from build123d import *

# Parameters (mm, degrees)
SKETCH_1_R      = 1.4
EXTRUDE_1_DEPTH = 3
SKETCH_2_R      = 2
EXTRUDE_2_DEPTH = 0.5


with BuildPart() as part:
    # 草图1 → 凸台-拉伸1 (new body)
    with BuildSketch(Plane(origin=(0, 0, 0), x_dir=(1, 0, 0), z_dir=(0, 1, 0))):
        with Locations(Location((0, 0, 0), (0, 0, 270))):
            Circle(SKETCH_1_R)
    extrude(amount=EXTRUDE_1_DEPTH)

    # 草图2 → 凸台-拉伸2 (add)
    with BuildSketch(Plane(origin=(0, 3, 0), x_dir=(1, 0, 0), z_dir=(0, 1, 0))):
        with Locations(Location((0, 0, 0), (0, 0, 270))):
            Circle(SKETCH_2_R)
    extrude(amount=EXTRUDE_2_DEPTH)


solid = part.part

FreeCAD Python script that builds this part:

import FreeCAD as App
import Part
import Sketcher

doc = App.newDocument("Part")
body = doc.addObject("PartDesign::Body", "Body")

sketch1 = doc.addObject("Sketcher::SketchObject", "Sketch")
body.addObject(sketch1)
sketch1.AttachmentSupport = (doc.XZ_Plane, [""])
sketch1.MapMode = "FlatFace"
sketch1.addGeometry(Part.Circle(App.Vector(0, 0, 0), App.Vector(0, 0, 1), 1.4), False)
sketch1.addConstraint([
    Sketcher.Constraint("Coincident", 0, 3, -1, 1),
    Sketcher.Constraint("Diameter", 0, 2.8),
])
pad1 = doc.addObject("PartDesign::Pad", "Pad")
body.addObject(pad1)
pad1.Profile = sketch1
pad1.Length = 3
pad1.Reversed = True

sketch2 = doc.addObject("Sketcher::SketchObject", "Sketch001")
body.addObject(sketch2)
sketch2.AttachmentSupport = (doc.XZ_Plane, [""])
sketch2.MapMode = "FlatFace"
sketch2.AttachmentOffset = App.Placement(App.Vector(0, 0, -3), App.Rotation())
sketch2.addGeometry(Part.Circle(App.Vector(0, 0, 0), App.Vector(0, 0, 1), 2), False)
sketch2.addConstraint([
    Sketcher.Constraint("Coincident", 0, 3, -1, 1),
    Sketcher.Constraint("Diameter", 0, 4.0),
])
pad2 = doc.addObject("PartDesign::Pad", "Pad001")
body.addObject(pad2)
pad2.Profile = sketch2
pad2.Length = 0.5
pad2.Reversed = True

doc.recompute()
